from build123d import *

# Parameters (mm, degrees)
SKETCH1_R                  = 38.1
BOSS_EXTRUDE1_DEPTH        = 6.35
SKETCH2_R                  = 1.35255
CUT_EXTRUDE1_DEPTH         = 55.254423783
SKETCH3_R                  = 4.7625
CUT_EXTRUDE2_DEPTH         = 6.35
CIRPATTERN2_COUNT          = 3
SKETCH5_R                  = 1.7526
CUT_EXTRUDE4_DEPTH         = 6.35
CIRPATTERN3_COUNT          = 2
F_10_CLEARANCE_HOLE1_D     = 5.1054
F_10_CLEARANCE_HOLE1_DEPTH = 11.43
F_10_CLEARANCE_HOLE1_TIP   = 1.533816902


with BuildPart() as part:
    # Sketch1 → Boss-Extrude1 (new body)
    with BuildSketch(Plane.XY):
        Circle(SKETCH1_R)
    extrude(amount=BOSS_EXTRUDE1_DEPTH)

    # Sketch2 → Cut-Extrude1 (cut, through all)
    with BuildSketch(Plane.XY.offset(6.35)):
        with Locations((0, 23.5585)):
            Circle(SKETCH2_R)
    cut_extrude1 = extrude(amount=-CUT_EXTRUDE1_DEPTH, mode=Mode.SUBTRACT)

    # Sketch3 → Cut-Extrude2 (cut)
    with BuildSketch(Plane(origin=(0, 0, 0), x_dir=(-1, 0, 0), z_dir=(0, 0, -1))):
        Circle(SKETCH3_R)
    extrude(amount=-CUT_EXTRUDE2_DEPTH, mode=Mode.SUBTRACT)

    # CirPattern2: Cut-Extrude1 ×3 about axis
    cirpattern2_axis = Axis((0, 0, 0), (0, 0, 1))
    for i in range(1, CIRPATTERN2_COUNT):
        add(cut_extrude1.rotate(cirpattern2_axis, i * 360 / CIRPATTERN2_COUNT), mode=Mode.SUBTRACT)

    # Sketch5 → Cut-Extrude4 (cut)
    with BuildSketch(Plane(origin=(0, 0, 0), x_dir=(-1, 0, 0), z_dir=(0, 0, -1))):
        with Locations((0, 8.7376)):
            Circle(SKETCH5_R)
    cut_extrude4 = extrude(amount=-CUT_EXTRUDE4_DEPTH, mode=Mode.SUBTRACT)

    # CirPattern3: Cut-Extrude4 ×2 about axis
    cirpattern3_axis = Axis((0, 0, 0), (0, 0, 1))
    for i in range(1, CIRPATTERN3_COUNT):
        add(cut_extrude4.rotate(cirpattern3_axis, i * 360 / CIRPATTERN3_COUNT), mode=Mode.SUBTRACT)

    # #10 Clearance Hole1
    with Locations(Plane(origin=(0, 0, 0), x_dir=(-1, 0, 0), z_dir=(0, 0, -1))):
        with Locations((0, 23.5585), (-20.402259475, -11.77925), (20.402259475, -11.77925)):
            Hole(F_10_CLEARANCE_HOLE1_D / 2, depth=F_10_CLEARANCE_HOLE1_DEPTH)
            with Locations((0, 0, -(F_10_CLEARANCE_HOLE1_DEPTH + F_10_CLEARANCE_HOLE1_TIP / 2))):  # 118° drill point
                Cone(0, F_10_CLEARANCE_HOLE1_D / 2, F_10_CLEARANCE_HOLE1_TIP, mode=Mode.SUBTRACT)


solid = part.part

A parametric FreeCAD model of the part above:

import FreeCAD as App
import Part
import Sketcher
from FreeCAD import Vector
Q = App.Units.Quantity

doc = App.newDocument("Part")
body = doc.addObject("PartDesign::Body", "Body")

sketch1 = body.newObject("Sketcher::SketchObject", "Sketch")
sketch1.AttachmentSupport = (doc.getObject("XY_Plane"), [""])
sketch1.MapMode = "FlatFace"
sketch1.addGeometry(Part.Circle(Vector(0, 0, 0), Vector(0, 0, 1), 38), False)
sketch1.addConstraint([
    Sketcher.Constraint("Coincident", 0, 3, -1, 1),
    Sketcher.Constraint("Diameter", 0, Q("3 in")),
])
pad1 = body.newObject("PartDesign::Pad", "Pad")
pad1.Profile = sketch1
pad1.Length = Q("0.25 in")

sketch2 = body.newObject("Sketcher::SketchObject", "Sketch001")
sketch2.AttachmentSupport = (doc.getObject("XY_Plane"), [""])
sketch2.MapMode = "FlatFace"
sketch2.AttachmentOffset = App.Placement(Vector(0, 0, 0.25 * 25.4), App.Rotation())
sketch2.addGeometry(Part.Circle(Vector(0, 23.6, 0), Vector(0, 0, 1), 1.4), False)
sketch2.addConstraint([
    Sketcher.Constraint("PointOnObject", 0, 3, -2),
    Sketcher.Constraint("Diameter", 0, Q("0.1065 in")),
    Sketcher.Constraint("DistanceY", -1, 1, 0, 3, Q("0.9275 in")),
])
pocket1 = body.newObject("PartDesign::Pocket", "Pocket")
pocket1.Profile = sketch2
pocket1.Type = "ThroughAll"

sketch3 = body.newObject("Sketcher::SketchObject", "Sketch002")
sketch3.AttachmentSupport = (doc.getObject("XY_Plane"), [""])
sketch3.MapMode = "FlatFace"
sketch3.addGeometry(Part.Circle(Vector(0, 0, 0), Vector(0, 0, 1), 4.8), False)
sketch3.addConstraint([
    Sketcher.Constraint("Coincident", 0, 3, -1, 1),
    Sketcher.Constraint("Diameter", 0, Q("0.375 in")),
])
pocket2 = body.newObject("PartDesign::Pocket", "Pocket001")
pocket2.Profile = sketch3
pocket2.Length = Q("0.25 in")
pocket2.Reversed = True
doc.recompute()

polarpattern = body.newObject("PartDesign::PolarPattern", "PolarPattern")
polarpattern.Originals = [pocket1]
polarpattern.Axis = (doc.getObject("Z_Axis"), [""])
polarpattern.Angle = 360
polarpattern.Occurrences = 3
body.Tip = polarpattern

sketch4 = body.newObject("Sketcher::SketchObject", "Sketch003")
sketch4.AttachmentSupport = (doc.getObject("XY_Plane"), [""])
sketch4.MapMode = "FlatFace"
sketch4.addGeometry(Part.Circle(Vector(0, 8.7, 0), Vector(0, 0, 1), 1.8), False)
sketch4.addConstraint([
    Sketcher.Constraint("PointOnObject", 0, 3, -2),
    Sketcher.Constraint("Diameter", 0, Q("0.138 in")),
    Sketcher.Constraint("DistanceY", -1, 1, 0, 3, Q("0.344 in")),
])
pocket3 = body.newObject("PartDesign::Pocket", "Pocket002")
pocket3.Profile = sketch4
pocket3.Length = Q("0.25 in")
pocket3.Reversed = True
doc.recompute()

polarpattern2 = body.newObject("PartDesign::PolarPattern", "PolarPattern001")
polarpattern2.Originals = [pocket3]
polarpattern2.Axis = (doc.getObject("Z_Axis"), [""])
polarpattern2.Angle = 360
polarpattern2.Occurrences = 2
body.Tip = polarpattern2

sketch5 = body.newObject("Sketcher::SketchObject", "Sketch004")
sketch5.AttachmentSupport = (doc.getObject("XY_Plane"), [""])
sketch5.MapMode = "FlatFace"
sketch5.addGeometry([
    Part.Circle(Vector(0, 23.6, 0), Vector(0, 0, 1), 2.6),
    Part.Circle(Vector(20.4, -11.8, 0), Vector(0, 0, 1), 2.6),
    Part.Circle(Vector(-20.4, -11.8, 0), Vector(0, 0, 1), 2.6),
], False)
sketch5.addConstraint([
    Sketcher.Constraint("Equal", 0, 1),
    Sketcher.Constraint("Equal", 1, 2),
    Sketcher.Constraint("Symmetric", 1, 3, 2, 3, -2),
    Sketcher.Constraint("PointOnObject", 0, 3, -2),
    Sketcher.Constraint("Diameter", 0, Q("0.201 in")),
    Sketcher.Constraint("DistanceY", -1, 1, 0, 3, Q("0.9275 in")),
    Sketcher.Constraint("DistanceX", -1, 1, 1, 3, 20.402259),
    Sketcher.Constraint("DistanceY", 1, 3, -1, 1, 11.77925),
])
doc.recompute()
hole = body.newObject("PartDesign::Hole", "Hole")
hole.Profile = sketch5
hole.ThreadType = "None"
hole.Diameter = Q("0.201 in")
hole.DepthType = "Dimension"
hole.Depth = Q("0.45 in")
hole.DrillPoint = "Angled"
hole.DrillPointAngle = 118
hole.Reversed = True

doc.recompute()
